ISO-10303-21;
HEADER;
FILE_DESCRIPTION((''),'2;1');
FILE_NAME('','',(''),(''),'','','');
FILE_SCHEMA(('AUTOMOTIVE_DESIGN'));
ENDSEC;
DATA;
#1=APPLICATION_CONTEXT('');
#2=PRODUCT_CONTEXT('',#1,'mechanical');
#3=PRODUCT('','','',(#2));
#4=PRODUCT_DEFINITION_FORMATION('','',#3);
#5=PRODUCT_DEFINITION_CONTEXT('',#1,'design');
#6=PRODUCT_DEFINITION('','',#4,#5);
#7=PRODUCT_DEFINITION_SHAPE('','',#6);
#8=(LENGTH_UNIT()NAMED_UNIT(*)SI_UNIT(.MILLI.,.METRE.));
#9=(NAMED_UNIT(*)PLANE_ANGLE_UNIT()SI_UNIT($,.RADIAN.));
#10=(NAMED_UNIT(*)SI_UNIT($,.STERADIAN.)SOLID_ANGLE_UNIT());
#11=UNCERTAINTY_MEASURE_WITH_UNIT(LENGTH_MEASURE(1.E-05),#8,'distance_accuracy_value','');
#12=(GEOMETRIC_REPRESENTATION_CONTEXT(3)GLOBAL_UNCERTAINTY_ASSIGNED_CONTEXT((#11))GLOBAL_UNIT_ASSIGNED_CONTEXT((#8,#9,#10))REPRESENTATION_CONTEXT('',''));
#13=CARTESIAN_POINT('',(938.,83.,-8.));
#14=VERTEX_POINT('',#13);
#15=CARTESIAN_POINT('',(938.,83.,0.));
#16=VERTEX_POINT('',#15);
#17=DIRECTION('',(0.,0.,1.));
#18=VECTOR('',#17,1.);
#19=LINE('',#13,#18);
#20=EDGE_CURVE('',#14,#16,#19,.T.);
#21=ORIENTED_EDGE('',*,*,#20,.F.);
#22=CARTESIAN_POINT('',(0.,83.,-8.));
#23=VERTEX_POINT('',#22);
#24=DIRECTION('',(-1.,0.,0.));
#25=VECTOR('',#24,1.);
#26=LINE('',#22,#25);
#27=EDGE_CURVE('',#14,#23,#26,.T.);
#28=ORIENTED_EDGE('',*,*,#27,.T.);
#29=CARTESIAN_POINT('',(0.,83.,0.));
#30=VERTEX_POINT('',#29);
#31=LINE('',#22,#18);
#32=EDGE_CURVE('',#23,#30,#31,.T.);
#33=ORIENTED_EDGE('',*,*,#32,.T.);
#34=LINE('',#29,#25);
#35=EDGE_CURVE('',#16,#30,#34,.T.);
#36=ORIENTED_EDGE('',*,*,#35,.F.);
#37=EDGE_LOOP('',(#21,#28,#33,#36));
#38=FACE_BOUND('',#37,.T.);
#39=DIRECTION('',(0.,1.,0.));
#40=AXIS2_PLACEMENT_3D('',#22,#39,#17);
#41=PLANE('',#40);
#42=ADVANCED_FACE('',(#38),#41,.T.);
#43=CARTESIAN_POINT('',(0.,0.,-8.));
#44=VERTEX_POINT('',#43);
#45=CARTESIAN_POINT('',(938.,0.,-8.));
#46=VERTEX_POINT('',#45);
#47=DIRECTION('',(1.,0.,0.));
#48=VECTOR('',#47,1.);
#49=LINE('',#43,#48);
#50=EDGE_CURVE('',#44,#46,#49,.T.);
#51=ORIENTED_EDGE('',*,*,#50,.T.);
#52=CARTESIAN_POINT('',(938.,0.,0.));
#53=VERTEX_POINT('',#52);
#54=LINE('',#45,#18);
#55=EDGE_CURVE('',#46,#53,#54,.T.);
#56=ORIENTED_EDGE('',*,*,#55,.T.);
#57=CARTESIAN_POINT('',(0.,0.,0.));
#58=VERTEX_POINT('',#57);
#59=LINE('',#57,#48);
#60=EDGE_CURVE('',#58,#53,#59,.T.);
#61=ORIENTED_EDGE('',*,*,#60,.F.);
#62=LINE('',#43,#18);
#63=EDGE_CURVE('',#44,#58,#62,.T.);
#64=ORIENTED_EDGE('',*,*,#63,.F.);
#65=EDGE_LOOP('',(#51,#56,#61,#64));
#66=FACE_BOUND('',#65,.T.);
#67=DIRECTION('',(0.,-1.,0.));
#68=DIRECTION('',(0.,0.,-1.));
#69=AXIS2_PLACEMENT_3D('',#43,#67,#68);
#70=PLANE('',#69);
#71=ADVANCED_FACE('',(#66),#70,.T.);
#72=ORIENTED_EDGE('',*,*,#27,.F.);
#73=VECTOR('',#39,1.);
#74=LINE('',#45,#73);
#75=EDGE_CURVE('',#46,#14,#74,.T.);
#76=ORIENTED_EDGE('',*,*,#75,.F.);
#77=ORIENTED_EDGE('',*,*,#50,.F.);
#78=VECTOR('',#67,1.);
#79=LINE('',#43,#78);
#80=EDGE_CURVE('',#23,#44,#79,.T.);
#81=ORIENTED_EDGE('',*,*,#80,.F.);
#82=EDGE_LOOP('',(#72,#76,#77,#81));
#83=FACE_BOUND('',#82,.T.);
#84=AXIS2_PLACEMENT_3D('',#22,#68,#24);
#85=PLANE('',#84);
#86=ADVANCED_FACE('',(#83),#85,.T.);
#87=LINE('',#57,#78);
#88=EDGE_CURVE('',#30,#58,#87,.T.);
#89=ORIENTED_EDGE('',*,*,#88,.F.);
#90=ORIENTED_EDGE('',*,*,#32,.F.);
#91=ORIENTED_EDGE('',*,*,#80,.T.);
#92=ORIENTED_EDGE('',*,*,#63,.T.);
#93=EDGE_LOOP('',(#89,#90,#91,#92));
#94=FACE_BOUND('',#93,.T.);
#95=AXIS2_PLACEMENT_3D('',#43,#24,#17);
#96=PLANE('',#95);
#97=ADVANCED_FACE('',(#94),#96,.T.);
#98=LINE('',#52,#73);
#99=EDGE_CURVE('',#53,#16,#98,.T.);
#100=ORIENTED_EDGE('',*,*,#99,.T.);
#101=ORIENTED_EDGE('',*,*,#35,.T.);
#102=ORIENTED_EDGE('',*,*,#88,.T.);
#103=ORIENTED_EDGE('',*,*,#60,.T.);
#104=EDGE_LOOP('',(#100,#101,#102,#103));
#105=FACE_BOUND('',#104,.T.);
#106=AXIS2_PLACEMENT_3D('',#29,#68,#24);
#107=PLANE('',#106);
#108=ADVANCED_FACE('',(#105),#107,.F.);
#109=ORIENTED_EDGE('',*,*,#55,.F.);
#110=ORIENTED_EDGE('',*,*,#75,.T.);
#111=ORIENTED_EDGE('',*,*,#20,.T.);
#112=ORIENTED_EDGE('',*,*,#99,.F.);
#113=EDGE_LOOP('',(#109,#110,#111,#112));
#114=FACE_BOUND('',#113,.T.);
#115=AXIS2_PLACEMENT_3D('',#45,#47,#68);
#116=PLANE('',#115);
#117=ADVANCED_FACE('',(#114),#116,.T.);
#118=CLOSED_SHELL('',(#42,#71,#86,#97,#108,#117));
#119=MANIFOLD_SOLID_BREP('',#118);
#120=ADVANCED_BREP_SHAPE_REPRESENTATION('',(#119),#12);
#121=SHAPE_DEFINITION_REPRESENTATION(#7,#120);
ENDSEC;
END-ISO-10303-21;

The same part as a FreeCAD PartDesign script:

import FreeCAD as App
import Part
import Sketcher
from FreeCAD import Vector

doc = App.newDocument("Part")
body = doc.addObject("PartDesign::Body", "Body")

# Sketch on XY plane
sketch1 = body.newObject("Sketcher::SketchObject", "Sketch")
sketch1.AttachmentSupport = (doc.getObject("XY_Plane"), [""])
sketch1.MapMode = "FlatFace"
sketch1.addGeometry([
    Part.LineSegment(Vector(0, 83, 0), Vector(0, 0, 0)),
    Part.LineSegment(Vector(0, 0, 0), Vector(938, 0, 0)),
    Part.LineSegment(Vector(938, 0, 0), Vector(938, 83, 0)),
    Part.LineSegment(Vector(938, 83, 0), Vector(0, 83, 0)),
], False)
sketch1.addConstraint([
    Sketcher.Constraint("Coincident", 0, 2, 1, 1),
    Sketcher.Constraint("Coincident", 1, 2, 2, 1),
    Sketcher.Constraint("Coincident", 2, 2, 3, 1),
    Sketcher.Constraint("Coincident", 3, 2, 0, 1),
    Sketcher.Constraint("Vertical", 0),
    Sketcher.Constraint("Horizontal", 1),
    Sketcher.Constraint("Vertical", 2),
    Sketcher.Constraint("Horizontal", 3),
    Sketcher.Constraint("Coincident", 0, 2, -1, 1),
    Sketcher.Constraint("DistanceX", 1, 1, 1, 2, 938.0),
    Sketcher.Constraint("DistanceY", 0, 2, 0, 1, 83.0),
])
pad1 = body.newObject("PartDesign::Pad", "Pad")
pad1.Profile = sketch1
pad1.Length = 8
pad1.Reversed = True

doc.recompute()
